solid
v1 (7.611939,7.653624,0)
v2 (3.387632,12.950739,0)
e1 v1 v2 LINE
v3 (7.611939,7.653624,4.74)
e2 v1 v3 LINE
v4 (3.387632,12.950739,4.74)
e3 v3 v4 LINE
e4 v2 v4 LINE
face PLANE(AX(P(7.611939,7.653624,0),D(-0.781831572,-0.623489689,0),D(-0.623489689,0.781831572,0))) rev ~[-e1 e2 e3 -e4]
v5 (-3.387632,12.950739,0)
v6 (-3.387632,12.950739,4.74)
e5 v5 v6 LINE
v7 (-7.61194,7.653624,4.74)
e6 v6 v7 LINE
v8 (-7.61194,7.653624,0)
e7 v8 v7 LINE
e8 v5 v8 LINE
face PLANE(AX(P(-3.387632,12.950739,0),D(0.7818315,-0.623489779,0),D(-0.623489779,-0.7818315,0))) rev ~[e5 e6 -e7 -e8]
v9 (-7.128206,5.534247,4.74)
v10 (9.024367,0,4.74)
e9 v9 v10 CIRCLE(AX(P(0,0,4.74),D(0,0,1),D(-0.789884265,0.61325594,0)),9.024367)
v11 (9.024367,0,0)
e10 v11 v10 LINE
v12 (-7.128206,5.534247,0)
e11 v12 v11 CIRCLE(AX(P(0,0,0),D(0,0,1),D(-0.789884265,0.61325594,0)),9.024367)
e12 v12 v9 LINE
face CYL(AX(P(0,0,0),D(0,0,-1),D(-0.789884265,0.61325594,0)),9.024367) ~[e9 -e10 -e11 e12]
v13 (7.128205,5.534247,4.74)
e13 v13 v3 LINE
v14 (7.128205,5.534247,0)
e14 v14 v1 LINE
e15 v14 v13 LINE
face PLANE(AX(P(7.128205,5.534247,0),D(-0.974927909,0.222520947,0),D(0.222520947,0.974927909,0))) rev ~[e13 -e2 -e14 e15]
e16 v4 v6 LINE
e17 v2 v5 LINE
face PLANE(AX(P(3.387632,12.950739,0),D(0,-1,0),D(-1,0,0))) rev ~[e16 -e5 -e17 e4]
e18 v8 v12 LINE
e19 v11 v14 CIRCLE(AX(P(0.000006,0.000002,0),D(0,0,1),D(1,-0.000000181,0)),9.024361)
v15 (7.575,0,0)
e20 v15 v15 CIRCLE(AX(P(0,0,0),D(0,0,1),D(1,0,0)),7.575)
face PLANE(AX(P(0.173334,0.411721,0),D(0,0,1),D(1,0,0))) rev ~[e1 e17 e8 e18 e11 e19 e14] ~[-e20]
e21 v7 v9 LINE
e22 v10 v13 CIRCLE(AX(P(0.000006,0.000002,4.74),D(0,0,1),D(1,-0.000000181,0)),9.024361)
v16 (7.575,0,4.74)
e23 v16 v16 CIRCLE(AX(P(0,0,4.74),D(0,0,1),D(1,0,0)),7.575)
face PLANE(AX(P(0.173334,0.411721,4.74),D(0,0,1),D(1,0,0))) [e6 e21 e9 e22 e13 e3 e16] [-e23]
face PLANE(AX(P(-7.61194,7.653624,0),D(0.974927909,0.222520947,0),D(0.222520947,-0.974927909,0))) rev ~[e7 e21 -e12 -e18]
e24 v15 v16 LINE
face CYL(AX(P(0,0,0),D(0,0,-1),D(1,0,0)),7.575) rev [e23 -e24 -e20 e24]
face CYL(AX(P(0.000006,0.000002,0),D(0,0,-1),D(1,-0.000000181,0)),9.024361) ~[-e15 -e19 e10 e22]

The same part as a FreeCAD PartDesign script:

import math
import FreeCAD as App
import Part
import Sketcher

V = App.Vector

doc = App.newDocument("Part")
params = doc.addObject("Spreadsheet::Sheet", "Params")
for row, (alias, value) in enumerate([
    ("sketch1_diameter", "15.15 mm"),
    ("pad1_length", "4.74 mm"),
], start=1):
    params.set(f"A{row}", alias)
    params.set(f"B{row}", "=" + value)
    params.setAlias(f"B{row}", alias)

body = doc.addObject("PartDesign::Body", "Body")

sketch1 = body.newObject("Sketcher::SketchObject", "Sketch")
sketch1.AttachmentSupport = (doc.getObject("XY_Plane"), [""])
sketch1.MapMode = "FlatFace"
sketch1.addGeometry([
    Part.ArcOfCircle(Part.Circle(V(0, 0, 0), V(0, 0, 1), 9), math.radians(142), math.radians(360)),
    Part.ArcOfCircle(Part.Circle(V(0, 0, 0), V(0, 0, 1), 9), math.radians(0), math.radians(38)),
    Part.LineSegment(V(7.1, 5.5, 0), V(7.6, 7.7, 0)),
    Part.LineSegment(V(7.6, 7.7, 0), V(3.4, 13, 0)),
    Part.LineSegment(V(3.4, 13, 0), V(-3.4, 13, 0)),
    Part.LineSegment(V(-3.4, 13, 0), V(-7.6, 7.7, 0)),
    Part.LineSegment(V(-7.6, 7.7, 0), V(-7.1, 5.5, 0)),
    Part.Circle(V(0, 0, 0), V(0, 0, 1), 7.6),
], False)
sketch1.addConstraint([
    Sketcher.Constraint("Tangent", 0, 2, 1, 1),
    Sketcher.Constraint("Coincident", 1, 2, 2, 1),
    Sketcher.Constraint("Coincident", 2, 2, 3, 1),
    Sketcher.Constraint("Coincident", 3, 2, 4, 1),
    Sketcher.Constraint("Coincident", 4, 2, 5, 1),
    Sketcher.Constraint("Coincident", 5, 2, 6, 1),
    Sketcher.Constraint("Coincident", 6, 2, 0, 1),
    Sketcher.Constraint("Horizontal", 4),
    Sketcher.Constraint("Coincident", 0, 3, -1, 1),
    Sketcher.Constraint("Coincident", 7, 3, -1, 1),
    Sketcher.Constraint("Symmetric", 2, 2, 5, 2, -2),
    Sketcher.Constraint("Symmetric", 1, 2, 6, 2, -2),
    Sketcher.Constraint("PointOnObject", 0, 2, -1),
    Sketcher.Constraint("Equal", 3, 5),
    Sketcher.Constraint("Diameter", 7, 15.15),
    Sketcher.Constraint("Radius", 1, 9.024361),
    Sketcher.Constraint("DistanceX", 1, 3, 1, 2, 7.128199),
    Sketcher.Constraint("Distance", 2, 2.173881),
    Sketcher.Constraint("DistanceX", 4, 2, 4, 1, 6.775264),
    Sketcher.Constraint("DistanceX", -1, 1, 2, 2, 7.611939),
    Sketcher.Constraint("DistanceY", -1, 1, 3, 2, 12.950739),
])
sketch1.setExpression("Constraints[14]", "Params.sketch1_diameter")
pad1 = body.newObject("PartDesign::Pad", "Pad")
pad1.Profile = sketch1
pad1.setExpression("Length", "Params.pad1_length")

doc.recompute()
